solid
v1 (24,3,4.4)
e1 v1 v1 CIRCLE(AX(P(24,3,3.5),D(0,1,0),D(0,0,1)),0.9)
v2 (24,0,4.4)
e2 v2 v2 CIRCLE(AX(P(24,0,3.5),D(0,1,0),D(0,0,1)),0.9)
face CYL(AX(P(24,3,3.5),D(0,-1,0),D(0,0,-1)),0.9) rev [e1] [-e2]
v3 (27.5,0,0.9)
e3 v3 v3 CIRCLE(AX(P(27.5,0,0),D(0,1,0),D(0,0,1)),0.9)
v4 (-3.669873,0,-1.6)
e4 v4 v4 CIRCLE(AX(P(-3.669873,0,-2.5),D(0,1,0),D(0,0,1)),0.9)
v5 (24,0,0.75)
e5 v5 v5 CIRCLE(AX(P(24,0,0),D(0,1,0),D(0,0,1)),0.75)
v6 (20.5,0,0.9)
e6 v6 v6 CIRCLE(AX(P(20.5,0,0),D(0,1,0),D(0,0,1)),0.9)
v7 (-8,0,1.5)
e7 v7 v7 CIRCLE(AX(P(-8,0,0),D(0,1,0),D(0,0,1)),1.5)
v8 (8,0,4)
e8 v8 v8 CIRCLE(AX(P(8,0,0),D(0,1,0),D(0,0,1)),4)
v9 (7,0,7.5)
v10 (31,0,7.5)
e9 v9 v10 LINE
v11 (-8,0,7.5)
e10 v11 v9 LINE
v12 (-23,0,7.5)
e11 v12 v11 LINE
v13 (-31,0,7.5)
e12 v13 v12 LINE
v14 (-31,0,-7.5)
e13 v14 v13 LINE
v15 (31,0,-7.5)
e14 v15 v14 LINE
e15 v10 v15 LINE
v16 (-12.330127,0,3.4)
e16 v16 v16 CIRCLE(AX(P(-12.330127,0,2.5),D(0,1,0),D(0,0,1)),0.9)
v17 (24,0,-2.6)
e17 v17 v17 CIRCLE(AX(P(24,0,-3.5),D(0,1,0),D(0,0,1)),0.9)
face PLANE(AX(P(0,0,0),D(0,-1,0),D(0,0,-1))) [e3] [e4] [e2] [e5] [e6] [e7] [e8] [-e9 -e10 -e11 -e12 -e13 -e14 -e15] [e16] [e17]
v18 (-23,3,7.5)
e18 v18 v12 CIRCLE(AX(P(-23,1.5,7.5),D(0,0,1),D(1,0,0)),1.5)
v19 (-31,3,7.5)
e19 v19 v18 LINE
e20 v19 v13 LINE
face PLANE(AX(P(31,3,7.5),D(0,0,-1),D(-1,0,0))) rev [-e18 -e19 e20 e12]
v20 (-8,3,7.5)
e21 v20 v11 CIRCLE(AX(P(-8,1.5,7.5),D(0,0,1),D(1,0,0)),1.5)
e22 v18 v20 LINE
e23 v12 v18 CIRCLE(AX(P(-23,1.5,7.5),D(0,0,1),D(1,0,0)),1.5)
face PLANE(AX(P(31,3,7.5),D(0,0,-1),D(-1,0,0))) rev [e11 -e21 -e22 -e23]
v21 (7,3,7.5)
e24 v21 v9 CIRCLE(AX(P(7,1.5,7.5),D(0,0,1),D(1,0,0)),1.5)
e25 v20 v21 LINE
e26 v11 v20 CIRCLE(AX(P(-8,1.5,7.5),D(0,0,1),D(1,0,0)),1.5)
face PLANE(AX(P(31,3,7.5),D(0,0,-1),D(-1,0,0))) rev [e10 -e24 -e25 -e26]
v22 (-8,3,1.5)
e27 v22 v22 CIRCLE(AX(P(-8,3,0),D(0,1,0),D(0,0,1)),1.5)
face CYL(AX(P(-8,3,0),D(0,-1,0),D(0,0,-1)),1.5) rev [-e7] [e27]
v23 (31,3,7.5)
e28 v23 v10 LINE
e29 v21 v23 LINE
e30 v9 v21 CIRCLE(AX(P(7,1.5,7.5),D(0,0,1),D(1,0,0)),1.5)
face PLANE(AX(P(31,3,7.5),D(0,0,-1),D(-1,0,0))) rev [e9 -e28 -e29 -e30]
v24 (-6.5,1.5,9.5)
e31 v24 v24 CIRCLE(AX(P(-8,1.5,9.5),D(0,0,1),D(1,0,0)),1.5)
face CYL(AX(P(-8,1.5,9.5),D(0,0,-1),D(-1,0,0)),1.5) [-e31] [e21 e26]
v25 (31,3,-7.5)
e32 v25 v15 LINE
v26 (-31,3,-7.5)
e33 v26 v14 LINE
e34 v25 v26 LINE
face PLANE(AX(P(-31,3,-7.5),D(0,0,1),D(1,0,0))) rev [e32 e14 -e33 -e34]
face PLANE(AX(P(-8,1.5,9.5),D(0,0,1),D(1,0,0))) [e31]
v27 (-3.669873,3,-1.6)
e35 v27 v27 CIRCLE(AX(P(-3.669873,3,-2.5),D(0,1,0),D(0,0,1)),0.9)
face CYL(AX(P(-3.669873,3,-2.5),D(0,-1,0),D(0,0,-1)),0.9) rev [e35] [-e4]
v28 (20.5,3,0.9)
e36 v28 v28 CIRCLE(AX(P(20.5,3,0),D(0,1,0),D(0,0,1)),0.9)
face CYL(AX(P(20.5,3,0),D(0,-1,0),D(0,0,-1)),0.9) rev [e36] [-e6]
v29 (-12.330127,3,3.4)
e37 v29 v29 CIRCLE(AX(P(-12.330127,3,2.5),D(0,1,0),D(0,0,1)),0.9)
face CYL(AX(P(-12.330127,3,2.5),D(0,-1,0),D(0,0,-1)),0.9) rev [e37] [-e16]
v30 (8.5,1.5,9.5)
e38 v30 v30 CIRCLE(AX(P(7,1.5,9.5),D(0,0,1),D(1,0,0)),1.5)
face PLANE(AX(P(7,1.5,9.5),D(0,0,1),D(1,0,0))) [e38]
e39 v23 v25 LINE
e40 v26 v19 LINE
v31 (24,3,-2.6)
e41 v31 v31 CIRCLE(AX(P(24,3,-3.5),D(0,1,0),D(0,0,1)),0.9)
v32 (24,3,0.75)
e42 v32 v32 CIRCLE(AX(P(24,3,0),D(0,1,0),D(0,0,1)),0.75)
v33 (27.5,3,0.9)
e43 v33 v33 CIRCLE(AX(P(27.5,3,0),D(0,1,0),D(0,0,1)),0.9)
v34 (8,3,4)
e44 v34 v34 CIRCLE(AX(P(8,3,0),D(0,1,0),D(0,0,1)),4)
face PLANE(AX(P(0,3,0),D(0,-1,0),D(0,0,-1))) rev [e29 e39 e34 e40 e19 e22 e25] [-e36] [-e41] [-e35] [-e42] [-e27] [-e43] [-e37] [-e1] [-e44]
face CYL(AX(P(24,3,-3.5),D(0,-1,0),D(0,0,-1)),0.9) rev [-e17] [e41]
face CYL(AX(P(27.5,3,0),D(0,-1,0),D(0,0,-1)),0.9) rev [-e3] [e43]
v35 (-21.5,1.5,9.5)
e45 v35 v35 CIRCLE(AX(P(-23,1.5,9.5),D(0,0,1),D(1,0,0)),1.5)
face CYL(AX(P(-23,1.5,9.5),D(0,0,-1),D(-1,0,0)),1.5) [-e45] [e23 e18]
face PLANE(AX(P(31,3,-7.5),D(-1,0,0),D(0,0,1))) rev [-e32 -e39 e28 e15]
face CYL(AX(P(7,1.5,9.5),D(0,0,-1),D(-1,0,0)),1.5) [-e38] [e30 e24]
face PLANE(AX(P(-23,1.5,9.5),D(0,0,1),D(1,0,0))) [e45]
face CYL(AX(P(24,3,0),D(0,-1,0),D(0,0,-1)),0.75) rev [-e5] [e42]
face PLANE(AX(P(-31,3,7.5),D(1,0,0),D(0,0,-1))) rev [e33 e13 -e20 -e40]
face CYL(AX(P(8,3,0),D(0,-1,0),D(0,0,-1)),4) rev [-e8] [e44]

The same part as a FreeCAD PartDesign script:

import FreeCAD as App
import Part
import Sketcher
Q = App.Units.Quantity

doc = App.newDocument("Part")
body = doc.addObject("PartDesign::Body", "Body")

# Sketch on XZ plane
sketch1 = body.newObject("Sketcher::SketchObject", "Sketch")
sketch1.AttachmentSupport = (doc.getObject("XZ_Plane"), [""])
sketch1.MapMode = "FlatFace"
sketch1.addGeometry([
    Part.LineSegment(App.Vector(-31, -7.5, 0), App.Vector(-31, 7.5, 0)),  # 0
    Part.LineSegment(App.Vector(-31, 7.5, 0), App.Vector(31, 7.5, 0)),  # 1
    Part.LineSegment(App.Vector(31, 7.5, 0), App.Vector(31, -7.5, 0)),  # 2
    Part.LineSegment(App.Vector(31, -7.5, 0), App.Vector(-31, -7.5, 0)),  # 3
    Part.Circle(App.Vector(-12.3, 2.5, 0), App.Vector(0, 0, 1), 0.9),  # 4
    Part.Circle(App.Vector(24, 3.5, 0), App.Vector(0, 0, 1), 0.9),  # 5
    Part.Circle(App.Vector(-8, 0, 0), App.Vector(0, 0, 1), 1.5),  # 6
    Part.Circle(App.Vector(-3.7, -2.5, 0), App.Vector(0, 0, 1), 0.9),  # 7
    Part.Circle(App.Vector(8, 0, 0), App.Vector(0, 0, 1), 4),  # 8
    Part.Circle(App.Vector(20.5, 0, 0), App.Vector(0, 0, 1), 0.9),  # 9
    Part.Circle(App.Vector(24, 0, 0), App.Vector(0, 0, 1), 0.8),  # 10
    Part.Circle(App.Vector(27.5, 0, 0), App.Vector(0, 0, 1), 0.9),  # 11
    Part.Circle(App.Vector(24, -3.5, 0), App.Vector(0, 0, 1), 0.9),  # 12
], False)
sketch1.addConstraint([
    Sketcher.Constraint("Coincident", 0, 2, 1, 1),
    Sketcher.Constraint("Coincident", 1, 2, 2, 1),
    Sketcher.Constraint("Coincident", 2, 2, 3, 1),
    Sketcher.Constraint("Coincident", 3, 2, 0, 1),
    Sketcher.Constraint("Vertical", 0),
    Sketcher.Constraint("Horizontal", 1),
    Sketcher.Constraint("Vertical", 2),
    Sketcher.Constraint("Horizontal", 3),
    Sketcher.Constraint("Equal", 4, 5),
    Sketcher.Constraint("Equal", 5, 7),
    Sketcher.Constraint("Equal", 7, 9),
    Sketcher.Constraint("Equal", 9, 11),
    Sketcher.Constraint("Equal", 11, 12),
    Sketcher.Constraint("Symmetric", 6, 3, 8, 3, -1, 1),
    Sketcher.Constraint("Symmetric", 0, 2, 2, 2, -1, 1),
    Sketcher.Constraint("Symmetric", 5, 3, 12, 3, -1),
    Sketcher.Constraint("PointOnObject", 6, 3, -1),
    Sketcher.Constraint("PointOnObject", 9, 3, -1),
    Sketcher.Constraint("PointOnObject", 10, 3, -1),
    Sketcher.Constraint("PointOnObject", 11, 3, -1),
    Sketcher.Constraint("Vertical", 5, 3, 10, 3),
    Sketcher.Constraint("Diameter", 6, Q("3 mm")),
    Sketcher.Constraint("Diameter", 8, Q("8 mm")),
    Sketcher.Constraint("Diameter", 4, Q("1.8 mm")),
    Sketcher.Constraint("Diameter", 10, Q("1.5 mm")),
    Sketcher.Constraint("DistanceX", 1, 1, 1, 2, Q("62 mm")),
    Sketcher.Constraint("DistanceY", 0, 1, 0, 2, Q("15 mm")),
    Sketcher.Constraint("DistanceX", -1, 1, 5, 3, Q("24 mm")),
    Sketcher.Constraint("DistanceX", 6, 3, -1, 1, Q("8 mm")),
    Sketcher.Constraint("DistanceY", 4, 3, 5, 3, Q("1 mm")),
    Sketcher.Constraint("DistanceY", 7, 3, 4, 3, Q("5 mm")),
    Sketcher.Constraint("DistanceX", 9, 3, 11, 3, Q("7 mm")),
    Sketcher.Constraint("DistanceY", 12, 3, 5, 3, Q("7 mm")),
    Sketcher.Constraint("DistanceX", -1, 1, 9, 3, Q("20.5 mm")),
    Sketcher.Constraint("DistanceX", 4, 3, -1, 1, Q("12.330127 mm")),
    Sketcher.Constraint("DistanceX", 7, 3, -1, 1, Q("3.669873 mm")),
])
pad1 = body.newObject("PartDesign::Pad", "Pad")
pad1.Profile = sketch1
pad1.Length = 3
pad1.Reversed = True

# Sketch on XY plane
sketch2 = body.newObject("Sketcher::SketchObject", "Sketch001")
sketch2.AttachmentSupport = (doc.getObject("XY_Plane"), [""])
sketch2.MapMode = "FlatFace"
sketch2.AttachmentOffset = App.Placement(App.Vector(0, 0, 7.5), App.Rotation())
sketch2.addGeometry([
    Part.Circle(App.Vector(-23, 1.5, 0), App.Vector(0, 0, 1), 1.5),
    Part.Circle(App.Vector(-8, 1.5, 0), App.Vector(0, 0, 1), 1.5),
    Part.Circle(App.Vector(7, 1.5, 0), App.Vector(0, 0, 1), 1.5),
], False)
sketch2.addConstraint([
    Sketcher.Constraint("Equal", 0, 1),
    Sketcher.Constraint("Equal", 1, 2),
    Sketcher.Constraint("Horizontal", 0, 3, 1, 3),
    Sketcher.Constraint("Horizontal", 1, 3, 2, 3),
    Sketcher.Constraint("Diameter", 0, Q("3 mm")),
    Sketcher.Constraint("DistanceX", 0, 3, -1, 1, Q("23 mm")),
    Sketcher.Constraint("DistanceX", 1, 3, -1, 1, Q("8 mm")),
    Sketcher.Constraint("DistanceX", -1, 1, 2, 3, Q("7 mm")),
    Sketcher.Constraint("DistanceY", -1, 1, 0, 3, Q("1.5 mm")),
])
pad2 = body.newObject("PartDesign::Pad", "Pad001")
pad2.Profile = sketch2
pad2.Length = 2

doc.recompute()
